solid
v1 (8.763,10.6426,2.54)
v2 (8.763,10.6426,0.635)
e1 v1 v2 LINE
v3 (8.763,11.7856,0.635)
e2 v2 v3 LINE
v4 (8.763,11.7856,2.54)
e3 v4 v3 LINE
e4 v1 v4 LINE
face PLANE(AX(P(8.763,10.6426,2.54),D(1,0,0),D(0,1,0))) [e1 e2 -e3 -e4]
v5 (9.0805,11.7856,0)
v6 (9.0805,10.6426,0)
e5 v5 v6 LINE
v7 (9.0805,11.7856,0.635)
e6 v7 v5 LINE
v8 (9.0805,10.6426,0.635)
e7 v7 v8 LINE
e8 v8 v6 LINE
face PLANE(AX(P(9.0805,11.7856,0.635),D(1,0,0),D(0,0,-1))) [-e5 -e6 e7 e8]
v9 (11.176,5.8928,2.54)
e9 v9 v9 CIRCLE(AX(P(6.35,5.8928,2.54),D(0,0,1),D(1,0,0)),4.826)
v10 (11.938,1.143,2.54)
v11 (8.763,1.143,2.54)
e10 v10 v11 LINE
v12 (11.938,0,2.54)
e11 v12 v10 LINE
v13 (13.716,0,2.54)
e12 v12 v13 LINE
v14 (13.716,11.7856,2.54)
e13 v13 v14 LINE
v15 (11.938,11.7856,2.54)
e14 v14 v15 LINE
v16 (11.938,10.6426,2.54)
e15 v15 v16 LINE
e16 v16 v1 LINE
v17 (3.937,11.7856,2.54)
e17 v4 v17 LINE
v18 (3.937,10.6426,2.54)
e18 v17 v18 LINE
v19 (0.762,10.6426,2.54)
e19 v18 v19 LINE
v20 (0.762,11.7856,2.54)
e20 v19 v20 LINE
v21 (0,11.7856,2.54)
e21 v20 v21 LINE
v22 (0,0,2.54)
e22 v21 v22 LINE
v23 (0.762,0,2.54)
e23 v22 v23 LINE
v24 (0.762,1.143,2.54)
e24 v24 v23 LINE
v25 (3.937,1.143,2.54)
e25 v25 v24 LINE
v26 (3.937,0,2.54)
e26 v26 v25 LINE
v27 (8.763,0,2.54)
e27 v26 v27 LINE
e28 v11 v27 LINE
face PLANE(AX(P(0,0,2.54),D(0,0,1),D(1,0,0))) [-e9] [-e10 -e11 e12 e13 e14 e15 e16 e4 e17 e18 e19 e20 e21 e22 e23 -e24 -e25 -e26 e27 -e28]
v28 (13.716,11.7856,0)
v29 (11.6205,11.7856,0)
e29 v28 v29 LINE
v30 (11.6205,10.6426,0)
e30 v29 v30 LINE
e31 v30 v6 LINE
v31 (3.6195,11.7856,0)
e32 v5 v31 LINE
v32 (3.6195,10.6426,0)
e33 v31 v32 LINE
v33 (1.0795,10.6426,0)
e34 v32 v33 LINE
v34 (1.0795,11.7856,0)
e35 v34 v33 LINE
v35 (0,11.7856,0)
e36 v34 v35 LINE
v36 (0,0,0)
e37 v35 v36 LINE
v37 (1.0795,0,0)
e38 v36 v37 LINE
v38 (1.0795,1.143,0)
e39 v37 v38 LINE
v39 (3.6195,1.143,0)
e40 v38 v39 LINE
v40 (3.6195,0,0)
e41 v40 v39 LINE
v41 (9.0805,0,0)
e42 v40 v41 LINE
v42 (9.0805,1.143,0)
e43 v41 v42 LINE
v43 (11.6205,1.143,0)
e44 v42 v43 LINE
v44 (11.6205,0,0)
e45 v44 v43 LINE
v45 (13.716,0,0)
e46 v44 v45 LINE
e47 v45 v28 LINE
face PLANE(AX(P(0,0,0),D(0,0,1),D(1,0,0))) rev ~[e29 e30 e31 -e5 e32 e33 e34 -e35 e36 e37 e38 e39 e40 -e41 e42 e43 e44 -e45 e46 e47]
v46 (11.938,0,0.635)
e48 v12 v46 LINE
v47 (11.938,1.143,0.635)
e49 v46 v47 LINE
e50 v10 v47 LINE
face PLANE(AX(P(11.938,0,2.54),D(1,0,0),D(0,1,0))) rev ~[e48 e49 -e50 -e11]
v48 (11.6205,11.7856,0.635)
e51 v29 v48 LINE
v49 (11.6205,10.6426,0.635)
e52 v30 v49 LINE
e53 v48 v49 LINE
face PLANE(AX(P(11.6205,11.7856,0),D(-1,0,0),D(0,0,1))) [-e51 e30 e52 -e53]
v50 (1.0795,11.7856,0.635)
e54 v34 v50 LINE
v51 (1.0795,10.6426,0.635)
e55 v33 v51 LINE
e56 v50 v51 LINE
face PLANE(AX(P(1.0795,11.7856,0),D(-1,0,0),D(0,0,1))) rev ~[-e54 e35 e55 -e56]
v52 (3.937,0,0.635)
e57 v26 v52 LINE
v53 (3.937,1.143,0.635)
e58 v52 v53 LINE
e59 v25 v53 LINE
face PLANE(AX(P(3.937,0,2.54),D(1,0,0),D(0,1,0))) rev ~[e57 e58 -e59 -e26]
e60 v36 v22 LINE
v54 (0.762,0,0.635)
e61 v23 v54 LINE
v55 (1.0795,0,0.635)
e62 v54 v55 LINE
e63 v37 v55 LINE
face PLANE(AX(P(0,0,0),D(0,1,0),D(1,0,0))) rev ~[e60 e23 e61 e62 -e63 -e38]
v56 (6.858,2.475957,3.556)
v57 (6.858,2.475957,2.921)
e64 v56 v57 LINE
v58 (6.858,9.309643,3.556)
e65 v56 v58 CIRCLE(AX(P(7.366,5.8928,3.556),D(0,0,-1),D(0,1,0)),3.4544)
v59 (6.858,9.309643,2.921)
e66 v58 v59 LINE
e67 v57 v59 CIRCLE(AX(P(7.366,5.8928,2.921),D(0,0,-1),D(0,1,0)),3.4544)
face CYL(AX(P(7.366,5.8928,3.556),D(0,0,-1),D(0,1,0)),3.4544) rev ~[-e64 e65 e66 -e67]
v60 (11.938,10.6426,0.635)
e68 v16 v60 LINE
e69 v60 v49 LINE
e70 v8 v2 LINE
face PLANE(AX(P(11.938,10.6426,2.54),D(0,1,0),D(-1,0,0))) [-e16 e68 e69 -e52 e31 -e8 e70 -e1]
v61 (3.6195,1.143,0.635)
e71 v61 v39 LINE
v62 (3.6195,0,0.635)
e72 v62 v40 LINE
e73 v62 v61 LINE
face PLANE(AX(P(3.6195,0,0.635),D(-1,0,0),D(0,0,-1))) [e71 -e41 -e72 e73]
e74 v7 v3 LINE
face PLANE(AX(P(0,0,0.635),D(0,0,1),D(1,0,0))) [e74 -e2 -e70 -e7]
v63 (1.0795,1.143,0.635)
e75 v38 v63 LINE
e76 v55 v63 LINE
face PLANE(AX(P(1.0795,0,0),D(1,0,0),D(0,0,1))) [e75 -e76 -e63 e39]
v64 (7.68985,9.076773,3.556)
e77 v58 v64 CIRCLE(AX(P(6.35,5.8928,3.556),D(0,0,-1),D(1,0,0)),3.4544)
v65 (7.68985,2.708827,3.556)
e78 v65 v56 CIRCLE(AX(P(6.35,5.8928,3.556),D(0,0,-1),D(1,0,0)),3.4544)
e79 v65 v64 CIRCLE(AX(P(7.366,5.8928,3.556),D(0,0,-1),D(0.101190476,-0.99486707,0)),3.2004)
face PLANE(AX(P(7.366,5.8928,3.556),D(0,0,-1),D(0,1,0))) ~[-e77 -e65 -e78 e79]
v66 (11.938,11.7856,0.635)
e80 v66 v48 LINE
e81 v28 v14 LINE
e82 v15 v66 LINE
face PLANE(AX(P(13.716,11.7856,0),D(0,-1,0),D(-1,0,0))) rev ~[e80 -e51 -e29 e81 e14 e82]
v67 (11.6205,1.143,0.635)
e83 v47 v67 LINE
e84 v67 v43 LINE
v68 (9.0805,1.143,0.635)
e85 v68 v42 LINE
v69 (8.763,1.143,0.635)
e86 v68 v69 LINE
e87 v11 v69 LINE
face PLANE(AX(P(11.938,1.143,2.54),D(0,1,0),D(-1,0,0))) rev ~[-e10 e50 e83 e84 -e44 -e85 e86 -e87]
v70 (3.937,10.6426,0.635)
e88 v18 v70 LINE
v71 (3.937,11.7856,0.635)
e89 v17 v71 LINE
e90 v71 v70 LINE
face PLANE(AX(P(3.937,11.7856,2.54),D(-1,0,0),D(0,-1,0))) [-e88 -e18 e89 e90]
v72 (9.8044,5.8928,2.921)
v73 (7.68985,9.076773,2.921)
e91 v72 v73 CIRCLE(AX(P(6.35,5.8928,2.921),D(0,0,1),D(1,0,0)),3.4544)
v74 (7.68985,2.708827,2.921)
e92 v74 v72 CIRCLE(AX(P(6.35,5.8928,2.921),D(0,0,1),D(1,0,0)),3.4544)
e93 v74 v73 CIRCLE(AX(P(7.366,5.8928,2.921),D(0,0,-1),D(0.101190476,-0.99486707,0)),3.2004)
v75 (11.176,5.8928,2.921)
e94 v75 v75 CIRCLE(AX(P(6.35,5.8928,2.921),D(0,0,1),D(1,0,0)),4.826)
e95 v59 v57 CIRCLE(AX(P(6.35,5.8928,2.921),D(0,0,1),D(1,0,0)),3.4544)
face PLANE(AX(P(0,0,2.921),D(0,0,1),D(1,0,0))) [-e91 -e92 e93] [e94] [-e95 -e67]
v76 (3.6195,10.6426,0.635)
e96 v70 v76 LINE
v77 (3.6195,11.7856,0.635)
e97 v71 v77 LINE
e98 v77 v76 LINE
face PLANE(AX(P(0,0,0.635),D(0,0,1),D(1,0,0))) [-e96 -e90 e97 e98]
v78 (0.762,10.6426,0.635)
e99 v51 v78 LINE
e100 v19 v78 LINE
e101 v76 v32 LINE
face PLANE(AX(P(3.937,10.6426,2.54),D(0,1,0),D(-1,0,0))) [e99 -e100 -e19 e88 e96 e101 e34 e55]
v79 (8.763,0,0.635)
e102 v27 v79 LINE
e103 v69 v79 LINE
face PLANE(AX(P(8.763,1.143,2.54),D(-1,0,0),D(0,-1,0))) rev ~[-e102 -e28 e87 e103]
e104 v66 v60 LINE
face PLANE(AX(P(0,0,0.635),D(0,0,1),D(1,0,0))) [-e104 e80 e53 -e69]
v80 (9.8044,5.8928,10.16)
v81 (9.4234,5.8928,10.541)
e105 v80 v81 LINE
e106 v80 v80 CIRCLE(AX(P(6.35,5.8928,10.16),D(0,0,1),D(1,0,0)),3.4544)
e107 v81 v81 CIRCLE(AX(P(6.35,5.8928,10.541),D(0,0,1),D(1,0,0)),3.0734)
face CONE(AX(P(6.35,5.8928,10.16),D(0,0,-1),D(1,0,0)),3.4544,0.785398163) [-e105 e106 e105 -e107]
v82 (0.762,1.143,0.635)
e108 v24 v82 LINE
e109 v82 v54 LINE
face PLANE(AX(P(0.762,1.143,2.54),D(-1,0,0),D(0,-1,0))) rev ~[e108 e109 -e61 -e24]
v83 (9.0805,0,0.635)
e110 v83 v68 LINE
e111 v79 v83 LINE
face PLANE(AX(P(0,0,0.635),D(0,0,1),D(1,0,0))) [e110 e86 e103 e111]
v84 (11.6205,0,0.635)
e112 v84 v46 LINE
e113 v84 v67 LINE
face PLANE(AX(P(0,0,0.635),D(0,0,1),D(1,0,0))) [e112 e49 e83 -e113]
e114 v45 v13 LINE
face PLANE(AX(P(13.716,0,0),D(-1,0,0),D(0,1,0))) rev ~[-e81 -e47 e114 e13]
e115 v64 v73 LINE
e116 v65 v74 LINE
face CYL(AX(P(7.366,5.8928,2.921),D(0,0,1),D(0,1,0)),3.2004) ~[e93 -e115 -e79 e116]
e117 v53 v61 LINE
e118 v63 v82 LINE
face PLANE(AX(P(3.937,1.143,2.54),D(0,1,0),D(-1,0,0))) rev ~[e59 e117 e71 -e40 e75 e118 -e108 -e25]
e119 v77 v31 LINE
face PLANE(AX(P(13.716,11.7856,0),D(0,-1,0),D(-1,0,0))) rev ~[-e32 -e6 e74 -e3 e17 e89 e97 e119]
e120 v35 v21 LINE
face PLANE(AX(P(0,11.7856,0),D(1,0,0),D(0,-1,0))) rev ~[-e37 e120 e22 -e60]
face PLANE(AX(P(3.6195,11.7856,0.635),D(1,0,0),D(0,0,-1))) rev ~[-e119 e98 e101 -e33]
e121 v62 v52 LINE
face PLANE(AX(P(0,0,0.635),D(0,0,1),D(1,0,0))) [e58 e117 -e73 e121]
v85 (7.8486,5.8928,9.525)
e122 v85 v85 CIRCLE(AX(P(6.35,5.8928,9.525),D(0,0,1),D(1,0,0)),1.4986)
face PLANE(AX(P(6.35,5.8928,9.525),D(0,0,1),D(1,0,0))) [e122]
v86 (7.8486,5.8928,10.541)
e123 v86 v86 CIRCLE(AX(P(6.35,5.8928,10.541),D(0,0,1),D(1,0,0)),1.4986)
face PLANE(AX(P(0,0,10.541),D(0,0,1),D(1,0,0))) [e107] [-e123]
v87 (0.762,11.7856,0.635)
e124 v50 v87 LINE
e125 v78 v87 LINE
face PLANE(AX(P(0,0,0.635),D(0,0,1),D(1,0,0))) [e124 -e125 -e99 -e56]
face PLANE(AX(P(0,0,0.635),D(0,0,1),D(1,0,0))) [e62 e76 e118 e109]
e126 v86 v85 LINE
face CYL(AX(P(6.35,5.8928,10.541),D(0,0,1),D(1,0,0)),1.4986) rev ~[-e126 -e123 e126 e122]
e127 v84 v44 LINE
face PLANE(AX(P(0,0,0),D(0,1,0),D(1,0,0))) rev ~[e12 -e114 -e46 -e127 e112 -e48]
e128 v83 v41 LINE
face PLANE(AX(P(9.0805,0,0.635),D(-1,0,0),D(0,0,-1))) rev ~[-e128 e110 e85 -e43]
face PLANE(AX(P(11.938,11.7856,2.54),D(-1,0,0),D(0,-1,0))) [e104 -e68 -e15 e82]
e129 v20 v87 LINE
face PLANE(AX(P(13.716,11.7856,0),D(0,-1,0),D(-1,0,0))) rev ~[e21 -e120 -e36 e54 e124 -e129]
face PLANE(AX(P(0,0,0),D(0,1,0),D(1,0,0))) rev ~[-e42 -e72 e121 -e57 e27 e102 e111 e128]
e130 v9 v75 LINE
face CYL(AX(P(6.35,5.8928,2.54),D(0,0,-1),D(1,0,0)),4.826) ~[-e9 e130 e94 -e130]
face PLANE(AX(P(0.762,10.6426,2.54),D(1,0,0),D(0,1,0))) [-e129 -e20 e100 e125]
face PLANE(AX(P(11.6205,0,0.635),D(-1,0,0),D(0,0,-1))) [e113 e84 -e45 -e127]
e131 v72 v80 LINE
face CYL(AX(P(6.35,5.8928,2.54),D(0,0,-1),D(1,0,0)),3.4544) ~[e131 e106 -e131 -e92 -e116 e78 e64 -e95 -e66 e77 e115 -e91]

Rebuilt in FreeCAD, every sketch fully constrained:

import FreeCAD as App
import Part
import Sketcher

V = App.Vector
Q = App.Units.Quantity


def edges_at(feature, points):
    """Names of the edges that pass closest to the given points."""
    edges = feature.Shape.Edges
    near = lambda p: min(range(len(edges)), key=lambda i: edges[i].distToShape(Part.Vertex(*p))[0])
    return sorted({f"Edge{near(p) + 1}" for p in points})


def add_polygon(sketch, points):
    """Adds a closed chain of lines whose ends are joined by coincident constraints."""
    first, n = sketch.GeometryCount, len(points)
    for a, b in zip(points, points[1:] + points[:1]):
        sketch.addGeometry(Part.LineSegment(App.Vector(*a, 0), App.Vector(*b, 0)), False)
    for i in range(n):
        sketch.addConstraint(Sketcher.Constraint("Coincident", first + i, 2, first + (i + 1) % n, 1))

doc = App.newDocument("Part")
body = doc.addObject("PartDesign::Body", "Body")

sketch1 = body.newObject("Sketcher::SketchObject", "Sketch")
sketch1.AttachmentSupport = (doc.getObject("XY_Plane"), [""])
sketch1.MapMode = "FlatFace"
add_polygon(sketch1, [(0, 12), (0, 0), (14, 0), (14, 12)])
sketch1.addConstraint(Sketcher.Constraint("Vertical", 0))
sketch1.addConstraint(Sketcher.Constraint("Horizontal", 1))
sketch1.addConstraint(Sketcher.Constraint("Vertical", 2))
sketch1.addConstraint(Sketcher.Constraint("Horizontal", 3))
sketch1.addConstraint(Sketcher.Constraint("Coincident", 0, 2, -1, 1))
sketch1.addConstraint(Sketcher.Constraint("DistanceX", 1, 1, 1, 2, Q("0.54 in")))
sketch1.addConstraint(Sketcher.Constraint("DistanceY", 0, 2, 0, 1, Q("0.464 in")))
pad1 = body.newObject("PartDesign::Pad", "Pad")
pad1.Profile = sketch1
pad1.Length = Q("0.1 in")

sketch2 = body.newObject("Sketcher::SketchObject", "Sketch001")
sketch2.AttachmentSupport = (doc.getObject("XY_Plane"), [""])
sketch2.MapMode = "FlatFace"
sketch2.AttachmentOffset = App.Placement(V(0, 0, 0.1 * 25.4), App.Rotation())
sketch2.addGeometry(Part.Circle(V(6.3, 5.9, 0), V(0, 0, 1), 3.5), False)
sketch2.addConstraint(Sketcher.Constraint("Diameter", 0, Q("0.272 in")))
sketch2.addConstraint(Sketcher.Constraint("DistanceY", -1, 1, 0, 3, Q("0.232 in")))
sketch2.addConstraint(Sketcher.Constraint("DistanceX", -1, 1, 0, 3, Q("0.25 in")))
pad2 = body.newObject("PartDesign::Pad", "Pad001")
pad2.Profile = sketch2
pad2.Length = Q("0.315 in")

sketch3 = body.newObject("Sketcher::SketchObject", "Sketch002")
sketch3.AttachmentSupport = (doc.getObject("XY_Plane"), [""])
sketch3.MapMode = "FlatFace"
sketch3.AttachmentOffset = App.Placement(V(0, 0, 0.1 * 25.4), App.Rotation())
sketch3.addGeometry(Part.Circle(V(6.3, 5.9, 0), V(0, 0, 1), 4.8), False)
sketch3.addGeometry(Part.Circle(V(6.3, 5.9, 0), V(0, 0, 1), 3.5), False)
sketch3.addConstraint(Sketcher.Constraint("Coincident", 1, 3, 0, 3))
sketch3.addConstraint(Sketcher.Constraint("Diameter", 0, Q("0.38 in")))
sketch3.addConstraint(Sketcher.Constraint("Diameter", 1, Q("0.272 in")))
sketch3.addConstraint(Sketcher.Constraint("DistanceX", -1, 1, 0, 3, Q("0.25 in")))
sketch3.addConstraint(Sketcher.Constraint("DistanceY", -1, 1, 0, 3, Q("0.232 in")))
pad3 = body.newObject("PartDesign::Pad", "Pad002")
pad3.Profile = sketch3
pad3.Length = Q("0.015 in")
doc.recompute()

chamfer = body.newObject("PartDesign::Chamfer", "Chamfer")
chamfer.Base = (pad3, edges_at(pad3, [(2.896, 5.893, 10.541)]))
chamfer.Size = Q("0.015 in")

sketch4 = body.newObject("Sketcher::SketchObject", "Sketch003")
sketch4.AttachmentSupport = (doc.getObject("YZ_Plane"), [""])
sketch4.MapMode = "FlatFace"
sketch4.AttachmentOffset = App.Placement(V(0, 0, 0.29 * 25.4), App.Rotation())
add_polygon(sketch4, [(9.09, 2.92), (9.35, 2.92), (9.35, 3.56), (9.09, 3.56)])
sketch4.addGeometry(Part.LineSegment(V(5.89, 3.56, 0), V(5.89, 2.92, 0)), True)
sketch4.addConstraint(Sketcher.Constraint("Horizontal", 0))
sketch4.addConstraint(Sketcher.Constraint("Vertical", 1))
sketch4.addConstraint(Sketcher.Constraint("Horizontal", 2))
sketch4.addConstraint(Sketcher.Constraint("Vertical", 3))
sketch4.addConstraint(Sketcher.Constraint("Vertical", 4))
sketch4.addConstraint(Sketcher.Constraint("Horizontal", 2, 2, 4, 1))
sketch4.addConstraint(Sketcher.Constraint("Horizontal", 3, 2, 4, 2))
sketch4.addConstraint(Sketcher.Constraint("DistanceX", 0, 1, 0, 2, Q("0.01 in")))
sketch4.addConstraint(Sketcher.Constraint("DistanceY", 1, 1, 1, 2, Q("0.025 in")))
sketch4.addConstraint(Sketcher.Constraint("DistanceY", -1, 1, 1, 2, Q("0.14 in")))
sketch4.addConstraint(Sketcher.Constraint("DistanceX", -1, 1, 0, 2, Q("0.368 in")))
sketch4.addConstraint(Sketcher.Constraint("DistanceX", -1, 1, 4, 1, Q("0.232 in")))
groove = body.newObject("PartDesign::Groove", "Groove")
groove.Profile = sketch4
groove.ReferenceAxis = (sketch4, ["Axis0"])
groove.Angle = 360

sketch5 = body.newObject("Sketcher::SketchObject", "Sketch004")
sketch5.AttachmentSupport = (doc.getObject("XY_Plane"), [""])
sketch5.MapMode = "FlatFace"
sketch5.AttachmentOffset = App.Placement(V(0, 0, 0.415 * 25.4), App.Rotation())
sketch5.addGeometry(Part.Circle(V(6.3, 5.9, 0), V(0, 0, 1), 1.5), False)
sketch5.addConstraint(Sketcher.Constraint("Diameter", 0, Q("0.118 in")))
sketch5.addConstraint(Sketcher.Constraint("DistanceX", -1, 1, 0, 3, Q("0.25 in")))
sketch5.addConstraint(Sketcher.Constraint("DistanceY", -1, 1, 0, 3, Q("0.232 in")))
pocket1 = body.newObject("PartDesign::Pocket", "Pocket")
pocket1.Profile = sketch5
pocket1.Length = Q("0.04 in")

sketch6 = body.newObject("Sketcher::SketchObject", "Sketch005")
sketch6.AttachmentSupport = (doc.getObject("XY_Plane"), [""])
sketch6.MapMode = "FlatFace"
sketch6.AttachmentOffset = App.Placement(V(0, 0, 0.1 * 25.4), App.Rotation())
add_polygon(sketch6, [(0.8, 1.1), (0.8, 0), (3.9, 0), (3.9, 1.1)])
add_polygon(sketch6, [(8.8, 1.1), (8.8, 0), (11.9, 0), (11.9, 1.1)])
add_polygon(sketch6, [(11.9, 10.6), (11.9, 11.8), (8.8, 11.8), (8.8, 10.6)])
add_polygon(sketch6, [(3.9, 10.6), (3.9, 11.8), (0.8, 11.8), (0.8, 10.6)])
sketch6.addConstraint(Sketcher.Constraint("Vertical", 0))
sketch6.addConstraint(Sketcher.Constraint("Horizontal", 1))
sketch6.addConstraint(Sketcher.Constraint("Vertical", 2))
sketch6.addConstraint(Sketcher.Constraint("Horizontal", 3))
sketch6.addConstraint(Sketcher.Constraint("Vertical", 4))
sketch6.addConstraint(Sketcher.Constraint("Horizontal", 5))
sketch6.addConstraint(Sketcher.Constraint("Vertical", 6))
sketch6.addConstraint(Sketcher.Constraint("Horizontal", 7))
sketch6.addConstraint(Sketcher.Constraint("Vertical", 8))
sketch6.addConstraint(Sketcher.Constraint("Horizontal", 9))
sketch6.addConstraint(Sketcher.Constraint("Vertical", 10))
sketch6.addConstraint(Sketcher.Constraint("Horizontal", 11))
sketch6.addConstraint(Sketcher.Constraint("Vertical", 12))
sketch6.addConstraint(Sketcher.Constraint("Horizontal", 13))
sketch6.addConstraint(Sketcher.Constraint("Vertical", 14))
sketch6.addConstraint(Sketcher.Constraint("Horizontal", 15))
sketch6.addConstraint(Sketcher.Constraint("PointOnObject", 0, 2, -1))
sketch6.addConstraint(Sketcher.Constraint("PointOnObject", 4, 2, -1))
sketch6.addConstraint(Sketcher.Constraint("Horizontal", 3, 2, 6, 2))
sketch6.addConstraint(Sketcher.Constraint("Horizontal", 9, 2, 12, 2))
sketch6.addConstraint(Sketcher.Constraint("Horizontal", 11, 2, 14, 2))
sketch6.addConstraint(Sketcher.Constraint("Vertical", 6, 2, 8, 2))
sketch6.addConstraint(Sketcher.Constraint("Vertical", 7, 2, 9, 2))
sketch6.addConstraint(Sketcher.Constraint("Vertical", 2, 2, 12, 2))
sketch6.addConstraint(Sketcher.Constraint("Vertical", 3, 2, 13, 2))
sketch6.addConstraint(Sketcher.Constraint("Equal", 3, 5))
sketch6.addConstraint(Sketcher.Constraint("Equal", 6, 8))
sketch6.addConstraint(Sketcher.Constraint("DistanceX", 1, 1, 1, 2, Q("0.125 in")))
sketch6.addConstraint(Sketcher.Constraint("DistanceY", 0, 2, 0, 1, Q("0.045 in")))
sketch6.addConstraint(Sketcher.Constraint("DistanceX", -1, 1, 0, 2, Q("0.03 in")))
sketch6.addConstraint(Sketcher.Constraint("DistanceX", 1, 2, 4, 2, Q("0.19 in")))
sketch6.addConstraint(Sketcher.Constraint("DistanceY", -1, 1, 8, 2, Q("0.464 in")))
pocket2 = body.newObject("PartDesign::Pocket", "Pocket001")
pocket2.Profile = sketch6
pocket2.Length = Q("0.075 in")

sketch7 = body.newObject("Sketcher::SketchObject", "Sketch006")
sketch7.AttachmentSupport = (doc.getObject("XZ_Plane"), [""])
sketch7.MapMode = "FlatFace"
add_polygon(sketch7, [(11.6, 0.6), (9.1, 0.6), (9.1, 0), (11.6, 0)])
sketch7.addConstraint(Sketcher.Constraint("Horizontal", 0))
sketch7.addConstraint(Sketcher.Constraint("Vertical", 1))
sketch7.addConstraint(Sketcher.Constraint("Horizontal", 2))
sketch7.addConstraint(Sketcher.Constraint("Vertical", 3))
sketch7.addConstraint(Sketcher.Constraint("PointOnObject", 1, 2, -1))
sketch7.addConstraint(Sketcher.Constraint("DistanceX", 0, 2, 0, 1, Q("0.1 in")))
sketch7.addConstraint(Sketcher.Constraint("DistanceY", 1, 2, 1, 1, Q("0.025 in")))
sketch7.addConstraint(Sketcher.Constraint("DistanceX", -1, 1, 0, 2, Q("0.3575 in")))
pocket3 = body.newObject("PartDesign::Pocket", "Pocket002")
pocket3.Profile = sketch7
pocket3.Length = Q("0.045 in")

sketch8 = body.newObject("Sketcher::SketchObject", "Sketch007")
sketch8.AttachmentSupport = (doc.getObject("XZ_Plane"), [""])
sketch8.MapMode = "FlatFace"
add_polygon(sketch8, [(3.6, 0), (3.6, 0.6), (1.1, 0.6), (1.1, 0)])
sketch8.addConstraint(Sketcher.Constraint("Vertical", 0))
sketch8.addConstraint(Sketcher.Constraint("Horizontal", 1))
sketch8.addConstraint(Sketcher.Constraint("Vertical", 2))
sketch8.addConstraint(Sketcher.Constraint("Horizontal", 3))
sketch8.addConstraint(Sketcher.Constraint("PointOnObject", 2, 2, -1))
sketch8.addConstraint(Sketcher.Constraint("DistanceX", 1, 2, 1, 1, Q("0.1 in")))
sketch8.addConstraint(Sketcher.Constraint("DistanceY", 0, 1, 0, 2, Q("0.025 in")))
sketch8.addConstraint(Sketcher.Constraint("DistanceX", -1, 1, 0, 2, Q("0.1425 in")))
pocket4 = body.newObject("PartDesign::Pocket", "Pocket003")
pocket4.Profile = sketch8
pocket4.Length = Q("0.045 in")

sketch9 = body.newObject("Sketcher::SketchObject", "Sketch008")
sketch9.AttachmentSupport = (doc.getObject("XZ_Plane"), [""])
sketch9.MapMode = "FlatFace"
sketch9.AttachmentOffset = App.Placement(V(0, 0, -0.464 * 25.4), App.Rotation())
add_polygon(sketch9, [(11.6, 0.6), (11.6, 0), (9.1, 0), (9.1, 0.6)])
add_polygon(sketch9, [(3.6, 0.6), (3.6, 0), (1.1, 0), (1.1, 0.6)])
sketch9.addConstraint(Sketcher.Constraint("Vertical", 0))
sketch9.addConstraint(Sketcher.Constraint("Horizontal", 1))
sketch9.addConstraint(Sketcher.Constraint("Vertical", 2))
sketch9.addConstraint(Sketcher.Constraint("Horizontal", 3))
sketch9.addConstraint(Sketcher.Constraint("Vertical", 4))
sketch9.addConstraint(Sketcher.Constraint("Horizontal", 5))
sketch9.addConstraint(Sketcher.Constraint("Vertical", 6))
sketch9.addConstraint(Sketcher.Constraint("Horizontal", 7))
sketch9.addConstraint(Sketcher.Constraint("PointOnObject", 0, 2, -1))
sketch9.addConstraint(Sketcher.Constraint("PointOnObject", 4, 2, -1))
sketch9.addConstraint(Sketcher.Constraint("Horizontal", 3, 2, 6, 2))
sketch9.addConstraint(Sketcher.Constraint("Equal", 3, 5))
sketch9.addConstraint(Sketcher.Constraint("DistanceX", 1, 2, 1, 1, Q("0.1 in")))
sketch9.addConstraint(Sketcher.Constraint("DistanceY", 0, 2, 0, 1, Q("0.025 in")))
sketch9.addConstraint(Sketcher.Constraint("DistanceX", 4, 2, 1, 2, Q("0.215 in")))
sketch9.addConstraint(Sketcher.Constraint("DistanceX", -1, 1, 0, 2, Q("0.4575 in")))
pocket5 = body.newObject("PartDesign::Pocket", "Pocket004")
pocket5.Profile = sketch9
pocket5.Length = Q("0.045 in")
pocket5.Reversed = True

doc.recompute()
